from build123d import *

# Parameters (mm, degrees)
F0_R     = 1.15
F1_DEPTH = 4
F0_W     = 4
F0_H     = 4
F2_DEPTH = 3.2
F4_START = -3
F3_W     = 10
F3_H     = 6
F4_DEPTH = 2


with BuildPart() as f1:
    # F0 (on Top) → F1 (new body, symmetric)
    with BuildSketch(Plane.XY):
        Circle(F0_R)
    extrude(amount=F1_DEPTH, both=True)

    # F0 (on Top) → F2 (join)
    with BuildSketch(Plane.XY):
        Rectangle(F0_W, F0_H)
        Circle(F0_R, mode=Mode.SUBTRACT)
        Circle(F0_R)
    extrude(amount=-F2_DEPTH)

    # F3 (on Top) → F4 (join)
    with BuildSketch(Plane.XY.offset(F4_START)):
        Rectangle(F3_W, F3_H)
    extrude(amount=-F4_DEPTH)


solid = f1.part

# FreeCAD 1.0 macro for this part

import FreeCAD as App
import Part
import Sketcher
Q = App.Units.Quantity


def add_polygon(sketch, points):
    """Adds a closed chain of lines whose ends are joined by coincident constraints."""
    first, n = sketch.GeometryCount, len(points)
    for a, b in zip(points, points[1:] + points[:1]):
        sketch.addGeometry(Part.LineSegment(App.Vector(*a, 0), App.Vector(*b, 0)), False)
    for i in range(n):
        sketch.addConstraint(Sketcher.Constraint("Coincident", first + i, 2, first + (i + 1) % n, 1))

doc = App.newDocument("Part")
body = doc.addObject("PartDesign::Body", "Body")

sketch1 = body.newObject("Sketcher::SketchObject", "Sketch")
sketch1.AttachmentSupport = (doc.getObject("XY_Plane"), [""])
sketch1.MapMode = "FlatFace"
sketch1.addGeometry(Part.Circle(App.Vector(0, 0, 0), App.Vector(0, 0, 1), 1.1), False)
sketch1.addConstraint([
    Sketcher.Constraint("Coincident", 0, 3, -1, 1),
    Sketcher.Constraint("Diameter", 0, Q("2.3 mm")),
])
pad1 = body.newObject("PartDesign::Pad", "Pad")
pad1.Profile = sketch1
pad1.Length = 8
pad1.Midplane = True

sketch2 = body.newObject("Sketcher::SketchObject", "Sketch001")
sketch2.AttachmentSupport = (doc.getObject("XY_Plane"), [""])
sketch2.MapMode = "FlatFace"
add_polygon(sketch2, [(-2, 2), (-2, -2), (2, -2), (2, 2)])
sketch2.addConstraint([
    Sketcher.Constraint("Vertical", 0),
    Sketcher.Constraint("Horizontal", 1),
    Sketcher.Constraint("Vertical", 2),
    Sketcher.Constraint("Horizontal", 3),
    Sketcher.Constraint("Symmetric", 0, 2, 2, 2, -1, 1),
    Sketcher.Constraint("Equal", 3, 0),
    Sketcher.Constraint("DistanceX", 1, 1, 1, 2, Q("4 mm")),
])
pad2 = body.newObject("PartDesign::Pad", "Pad001")
pad2.Profile = sketch2
pad2.Length = 3.2
pad2.Reversed = True

sketch3 = body.newObject("Sketcher::SketchObject", "Sketch002")
sketch3.AttachmentSupport = (doc.getObject("XY_Plane"), [""])
sketch3.MapMode = "FlatFace"
sketch3.AttachmentOffset = App.Placement(App.Vector(0, 0, -3), App.Rotation())
add_polygon(sketch3, [(-5, 3), (-5, -3), (5, -3), (5, 3)])
sketch3.addConstraint([
    Sketcher.Constraint("Vertical", 0),
    Sketcher.Constraint("Horizontal", 1),
    Sketcher.Constraint("Vertical", 2),
    Sketcher.Constraint("Horizontal", 3),
    Sketcher.Constraint("Symmetric", 0, 2, 2, 2, -1, 1),
    Sketcher.Constraint("DistanceX", 1, 1, 1, 2, Q("10 mm")),
    Sketcher.Constraint("DistanceY", 0, 2, 0, 1, Q("6 mm")),
])
pad3 = body.newObject("PartDesign::Pad", "Pad002")
pad3.Profile = sketch3
pad3.Length = 2
pad3.Reversed = True

doc.recompute()
